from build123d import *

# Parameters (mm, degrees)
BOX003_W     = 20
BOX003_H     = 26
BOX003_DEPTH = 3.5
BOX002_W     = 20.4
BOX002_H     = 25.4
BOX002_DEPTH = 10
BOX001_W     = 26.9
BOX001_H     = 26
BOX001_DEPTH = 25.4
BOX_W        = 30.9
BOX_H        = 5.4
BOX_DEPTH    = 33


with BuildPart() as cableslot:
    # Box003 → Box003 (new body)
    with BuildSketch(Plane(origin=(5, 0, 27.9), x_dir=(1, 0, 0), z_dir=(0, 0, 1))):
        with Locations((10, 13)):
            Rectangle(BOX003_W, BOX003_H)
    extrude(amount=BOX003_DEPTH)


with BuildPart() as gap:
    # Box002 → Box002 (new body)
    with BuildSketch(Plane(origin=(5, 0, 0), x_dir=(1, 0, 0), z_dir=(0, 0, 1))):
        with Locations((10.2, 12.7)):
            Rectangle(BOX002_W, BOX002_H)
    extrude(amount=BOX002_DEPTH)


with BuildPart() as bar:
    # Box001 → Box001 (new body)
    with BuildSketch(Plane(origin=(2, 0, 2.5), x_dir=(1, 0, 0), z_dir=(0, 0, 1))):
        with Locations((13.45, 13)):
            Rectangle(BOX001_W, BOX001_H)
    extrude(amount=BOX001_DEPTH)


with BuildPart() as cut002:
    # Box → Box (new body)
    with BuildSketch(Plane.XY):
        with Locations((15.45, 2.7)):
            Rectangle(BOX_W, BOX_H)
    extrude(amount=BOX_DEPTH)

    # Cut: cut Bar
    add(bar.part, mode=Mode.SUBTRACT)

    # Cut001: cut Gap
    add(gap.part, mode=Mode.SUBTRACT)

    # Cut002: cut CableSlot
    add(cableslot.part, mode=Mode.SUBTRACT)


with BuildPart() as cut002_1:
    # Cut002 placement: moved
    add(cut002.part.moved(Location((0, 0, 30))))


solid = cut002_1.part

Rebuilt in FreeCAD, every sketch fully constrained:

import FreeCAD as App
import Part
import Sketcher

V = App.Vector
Q = App.Units.Quantity

doc = App.newDocument("Part")
body = doc.addObject("PartDesign::Body", "Body")

# Sketch on XY plane
sketch1 = doc.addObject("Sketcher::SketchObject", "Sketch")
body.addObject(sketch1)
sketch1.AttachmentSupport = (doc.XY_Plane, [""])
sketch1.MapMode = "FlatFace"
sketch1.AttachmentOffset = App.Placement(V(0, 0, 27.9), App.Rotation())
sketch1.addGeometry([
    Part.LineSegment(V(5, 26, 0), V(5, 0, 0)),
    Part.LineSegment(V(5, 0, 0), V(25, 0, 0)),
    Part.LineSegment(V(25, 0, 0), V(25, 26, 0)),
    Part.LineSegment(V(25, 26, 0), V(5, 26, 0)),
], False)
sketch1.addConstraint([
    Sketcher.Constraint("Coincident", 0, 2, 1, 1),
    Sketcher.Constraint("Coincident", 1, 2, 2, 1),
    Sketcher.Constraint("Coincident", 2, 2, 3, 1),
    Sketcher.Constraint("Coincident", 3, 2, 0, 1),
    Sketcher.Constraint("Vertical", 0),
    Sketcher.Constraint("Horizontal", 1),
    Sketcher.Constraint("Vertical", 2),
    Sketcher.Constraint("Horizontal", 3),
    Sketcher.Constraint("PointOnObject", 0, 2, -1),
    Sketcher.Constraint("DistanceX", 1, 1, 1, 2, Q("20 mm")),
    Sketcher.Constraint("DistanceY", 0, 2, 0, 1, Q("26 mm")),
    Sketcher.Constraint("DistanceX", -1, 1, 0, 2, Q("5 mm")),
])
pad1 = doc.addObject("PartDesign::Pad", "Pad")
body.addObject(pad1)
pad1.Profile = sketch1
pad1.Length = 3.5
body2 = doc.addObject("PartDesign::Body", "Body001")

# Sketch on XY plane
sketch2 = doc.addObject("Sketcher::SketchObject", "Sketch001")
body2.addObject(sketch2)
sketch2.AttachmentSupport = (doc.getObject("XY_Plane001"), [""])
sketch2.MapMode = "FlatFace"
sketch2.addGeometry([
    Part.LineSegment(V(5, 25, 0), V(5, 0, 0)),
    Part.LineSegment(V(5, 0, 0), V(25, 0, 0)),
    Part.LineSegment(V(25, 0, 0), V(25, 25, 0)),
    Part.LineSegment(V(25, 25, 0), V(5, 25, 0)),
], False)
sketch2.addConstraint([
    Sketcher.Constraint("Coincident", 0, 2, 1, 1),
    Sketcher.Constraint("Coincident", 1, 2, 2, 1),
    Sketcher.Constraint("Coincident", 2, 2, 3, 1),
    Sketcher.Constraint("Coincident", 3, 2, 0, 1),
    Sketcher.Constraint("Vertical", 0),
    Sketcher.Constraint("Horizontal", 1),
    Sketcher.Constraint("Vertical", 2),
    Sketcher.Constraint("Horizontal", 3),
    Sketcher.Constraint("PointOnObject", 0, 2, -1),
    Sketcher.Constraint("DistanceX", 1, 1, 1, 2, Q("20.4 mm")),
    Sketcher.Constraint("DistanceY", 0, 2, 0, 1, Q("25.4 mm")),
    Sketcher.Constraint("DistanceX", -1, 1, 0, 2, Q("5 mm")),
])
pad2 = doc.addObject("PartDesign::Pad", "Pad001")
body2.addObject(pad2)
pad2.Profile = sketch2
pad2.Length = 10
body3 = doc.addObject("PartDesign::Body", "Body002")

# Sketch on XY plane
sketch3 = doc.addObject("Sketcher::SketchObject", "Sketch002")
body3.addObject(sketch3)
sketch3.AttachmentSupport = (doc.getObject("XY_Plane002"), [""])
sketch3.MapMode = "FlatFace"
sketch3.AttachmentOffset = App.Placement(V(0, 0, 2.5), App.Rotation())
sketch3.addGeometry([
    Part.LineSegment(V(2, 26, 0), V(2, 0, 0)),
    Part.LineSegment(V(2, 0, 0), V(29, 0, 0)),
    Part.LineSegment(V(29, 0, 0), V(29, 26, 0)),
    Part.LineSegment(V(29, 26, 0), V(2, 26, 0)),
], False)
sketch3.addConstraint([
    Sketcher.Constraint("Coincident", 0, 2, 1, 1),
    Sketcher.Constraint("Coincident", 1, 2, 2, 1),
    Sketcher.Constraint("Coincident", 2, 2, 3, 1),
    Sketcher.Constraint("Coincident", 3, 2, 0, 1),
    Sketcher.Constraint("Vertical", 0),
    Sketcher.Constraint("Horizontal", 1),
    Sketcher.Constraint("Vertical", 2),
    Sketcher.Constraint("Horizontal", 3),
    Sketcher.Constraint("PointOnObject", 0, 2, -1),
    Sketcher.Constraint("DistanceY", 0, 2, 0, 1, Q("26 mm")),
    Sketcher.Constraint("DistanceX", 1, 1, 1, 2, Q("26.9 mm")),
    Sketcher.Constraint("DistanceX", -1, 1, 0, 2, Q("2 mm")),
])
pad3 = doc.addObject("PartDesign::Pad", "Pad002")
body3.addObject(pad3)
pad3.Profile = sketch3
pad3.Length = 25.4
body4 = doc.addObject("PartDesign::Body", "Body003")

# Sketch on XY plane
sketch4 = doc.addObject("Sketcher::SketchObject", "Sketch003")
body4.addObject(sketch4)
sketch4.AttachmentSupport = (doc.getObject("XY_Plane003"), [""])
sketch4.MapMode = "FlatFace"
sketch4.addGeometry([
    Part.LineSegment(V(0, 5, 0), V(0, 0, 0)),
    Part.LineSegment(V(0, 0, 0), V(31, 0, 0)),
    Part.LineSegment(V(31, 0, 0), V(31, 5, 0)),
    Part.LineSegment(V(31, 5, 0), V(0, 5, 0)),
], False)
sketch4.addConstraint([
    Sketcher.Constraint("Coincident", 0, 2, 1, 1),
    Sketcher.Constraint("Coincident", 1, 2, 2, 1),
    Sketcher.Constraint("Coincident", 2, 2, 3, 1),
    Sketcher.Constraint("Coincident", 3, 2, 0, 1),
    Sketcher.Constraint("Vertical", 0),
    Sketcher.Constraint("Horizontal", 1),
    Sketcher.Constraint("Vertical", 2),
    Sketcher.Constraint("Horizontal", 3),
    Sketcher.Constraint("Coincident", 0, 2, -1, 1),
    Sketcher.Constraint("DistanceX", 1, 1, 1, 2, Q("30.9 mm")),
    Sketcher.Constraint("DistanceY", 0, 2, 0, 1, Q("5.4 mm")),
])
pad4 = doc.addObject("PartDesign::Pad", "Pad003")
body4.addObject(pad4)
pad4.Profile = sketch4
pad4.Length = 33
doc.recompute()

boolean = doc.addObject("PartDesign::Boolean", "Boolean")
body4.addObject(boolean)
boolean.Type = "Cut"
boolean.addObjects([body3])
doc.recompute()

boolean2 = doc.addObject("PartDesign::Boolean", "Boolean001")
body4.addObject(boolean2)
boolean2.Type = "Cut"
boolean2.addObjects([body2])
doc.recompute()

boolean3 = doc.addObject("PartDesign::Boolean", "Boolean002")
body4.addObject(boolean3)
boolean3.Type = "Cut"
boolean3.addObjects([body])
body5 = doc.addObject("PartDesign::Body", "Body004")
doc.recompute()

body4.Placement = App.Placement(V(0, 0, 30), App.Rotation(V(0, 0, 1), 0))
boolean4 = doc.addObject("PartDesign::Boolean", "Boolean003")
body5.addObject(boolean4)
boolean4.Type = "Fuse"
boolean4.addObjects([body4])

doc.recompute()
